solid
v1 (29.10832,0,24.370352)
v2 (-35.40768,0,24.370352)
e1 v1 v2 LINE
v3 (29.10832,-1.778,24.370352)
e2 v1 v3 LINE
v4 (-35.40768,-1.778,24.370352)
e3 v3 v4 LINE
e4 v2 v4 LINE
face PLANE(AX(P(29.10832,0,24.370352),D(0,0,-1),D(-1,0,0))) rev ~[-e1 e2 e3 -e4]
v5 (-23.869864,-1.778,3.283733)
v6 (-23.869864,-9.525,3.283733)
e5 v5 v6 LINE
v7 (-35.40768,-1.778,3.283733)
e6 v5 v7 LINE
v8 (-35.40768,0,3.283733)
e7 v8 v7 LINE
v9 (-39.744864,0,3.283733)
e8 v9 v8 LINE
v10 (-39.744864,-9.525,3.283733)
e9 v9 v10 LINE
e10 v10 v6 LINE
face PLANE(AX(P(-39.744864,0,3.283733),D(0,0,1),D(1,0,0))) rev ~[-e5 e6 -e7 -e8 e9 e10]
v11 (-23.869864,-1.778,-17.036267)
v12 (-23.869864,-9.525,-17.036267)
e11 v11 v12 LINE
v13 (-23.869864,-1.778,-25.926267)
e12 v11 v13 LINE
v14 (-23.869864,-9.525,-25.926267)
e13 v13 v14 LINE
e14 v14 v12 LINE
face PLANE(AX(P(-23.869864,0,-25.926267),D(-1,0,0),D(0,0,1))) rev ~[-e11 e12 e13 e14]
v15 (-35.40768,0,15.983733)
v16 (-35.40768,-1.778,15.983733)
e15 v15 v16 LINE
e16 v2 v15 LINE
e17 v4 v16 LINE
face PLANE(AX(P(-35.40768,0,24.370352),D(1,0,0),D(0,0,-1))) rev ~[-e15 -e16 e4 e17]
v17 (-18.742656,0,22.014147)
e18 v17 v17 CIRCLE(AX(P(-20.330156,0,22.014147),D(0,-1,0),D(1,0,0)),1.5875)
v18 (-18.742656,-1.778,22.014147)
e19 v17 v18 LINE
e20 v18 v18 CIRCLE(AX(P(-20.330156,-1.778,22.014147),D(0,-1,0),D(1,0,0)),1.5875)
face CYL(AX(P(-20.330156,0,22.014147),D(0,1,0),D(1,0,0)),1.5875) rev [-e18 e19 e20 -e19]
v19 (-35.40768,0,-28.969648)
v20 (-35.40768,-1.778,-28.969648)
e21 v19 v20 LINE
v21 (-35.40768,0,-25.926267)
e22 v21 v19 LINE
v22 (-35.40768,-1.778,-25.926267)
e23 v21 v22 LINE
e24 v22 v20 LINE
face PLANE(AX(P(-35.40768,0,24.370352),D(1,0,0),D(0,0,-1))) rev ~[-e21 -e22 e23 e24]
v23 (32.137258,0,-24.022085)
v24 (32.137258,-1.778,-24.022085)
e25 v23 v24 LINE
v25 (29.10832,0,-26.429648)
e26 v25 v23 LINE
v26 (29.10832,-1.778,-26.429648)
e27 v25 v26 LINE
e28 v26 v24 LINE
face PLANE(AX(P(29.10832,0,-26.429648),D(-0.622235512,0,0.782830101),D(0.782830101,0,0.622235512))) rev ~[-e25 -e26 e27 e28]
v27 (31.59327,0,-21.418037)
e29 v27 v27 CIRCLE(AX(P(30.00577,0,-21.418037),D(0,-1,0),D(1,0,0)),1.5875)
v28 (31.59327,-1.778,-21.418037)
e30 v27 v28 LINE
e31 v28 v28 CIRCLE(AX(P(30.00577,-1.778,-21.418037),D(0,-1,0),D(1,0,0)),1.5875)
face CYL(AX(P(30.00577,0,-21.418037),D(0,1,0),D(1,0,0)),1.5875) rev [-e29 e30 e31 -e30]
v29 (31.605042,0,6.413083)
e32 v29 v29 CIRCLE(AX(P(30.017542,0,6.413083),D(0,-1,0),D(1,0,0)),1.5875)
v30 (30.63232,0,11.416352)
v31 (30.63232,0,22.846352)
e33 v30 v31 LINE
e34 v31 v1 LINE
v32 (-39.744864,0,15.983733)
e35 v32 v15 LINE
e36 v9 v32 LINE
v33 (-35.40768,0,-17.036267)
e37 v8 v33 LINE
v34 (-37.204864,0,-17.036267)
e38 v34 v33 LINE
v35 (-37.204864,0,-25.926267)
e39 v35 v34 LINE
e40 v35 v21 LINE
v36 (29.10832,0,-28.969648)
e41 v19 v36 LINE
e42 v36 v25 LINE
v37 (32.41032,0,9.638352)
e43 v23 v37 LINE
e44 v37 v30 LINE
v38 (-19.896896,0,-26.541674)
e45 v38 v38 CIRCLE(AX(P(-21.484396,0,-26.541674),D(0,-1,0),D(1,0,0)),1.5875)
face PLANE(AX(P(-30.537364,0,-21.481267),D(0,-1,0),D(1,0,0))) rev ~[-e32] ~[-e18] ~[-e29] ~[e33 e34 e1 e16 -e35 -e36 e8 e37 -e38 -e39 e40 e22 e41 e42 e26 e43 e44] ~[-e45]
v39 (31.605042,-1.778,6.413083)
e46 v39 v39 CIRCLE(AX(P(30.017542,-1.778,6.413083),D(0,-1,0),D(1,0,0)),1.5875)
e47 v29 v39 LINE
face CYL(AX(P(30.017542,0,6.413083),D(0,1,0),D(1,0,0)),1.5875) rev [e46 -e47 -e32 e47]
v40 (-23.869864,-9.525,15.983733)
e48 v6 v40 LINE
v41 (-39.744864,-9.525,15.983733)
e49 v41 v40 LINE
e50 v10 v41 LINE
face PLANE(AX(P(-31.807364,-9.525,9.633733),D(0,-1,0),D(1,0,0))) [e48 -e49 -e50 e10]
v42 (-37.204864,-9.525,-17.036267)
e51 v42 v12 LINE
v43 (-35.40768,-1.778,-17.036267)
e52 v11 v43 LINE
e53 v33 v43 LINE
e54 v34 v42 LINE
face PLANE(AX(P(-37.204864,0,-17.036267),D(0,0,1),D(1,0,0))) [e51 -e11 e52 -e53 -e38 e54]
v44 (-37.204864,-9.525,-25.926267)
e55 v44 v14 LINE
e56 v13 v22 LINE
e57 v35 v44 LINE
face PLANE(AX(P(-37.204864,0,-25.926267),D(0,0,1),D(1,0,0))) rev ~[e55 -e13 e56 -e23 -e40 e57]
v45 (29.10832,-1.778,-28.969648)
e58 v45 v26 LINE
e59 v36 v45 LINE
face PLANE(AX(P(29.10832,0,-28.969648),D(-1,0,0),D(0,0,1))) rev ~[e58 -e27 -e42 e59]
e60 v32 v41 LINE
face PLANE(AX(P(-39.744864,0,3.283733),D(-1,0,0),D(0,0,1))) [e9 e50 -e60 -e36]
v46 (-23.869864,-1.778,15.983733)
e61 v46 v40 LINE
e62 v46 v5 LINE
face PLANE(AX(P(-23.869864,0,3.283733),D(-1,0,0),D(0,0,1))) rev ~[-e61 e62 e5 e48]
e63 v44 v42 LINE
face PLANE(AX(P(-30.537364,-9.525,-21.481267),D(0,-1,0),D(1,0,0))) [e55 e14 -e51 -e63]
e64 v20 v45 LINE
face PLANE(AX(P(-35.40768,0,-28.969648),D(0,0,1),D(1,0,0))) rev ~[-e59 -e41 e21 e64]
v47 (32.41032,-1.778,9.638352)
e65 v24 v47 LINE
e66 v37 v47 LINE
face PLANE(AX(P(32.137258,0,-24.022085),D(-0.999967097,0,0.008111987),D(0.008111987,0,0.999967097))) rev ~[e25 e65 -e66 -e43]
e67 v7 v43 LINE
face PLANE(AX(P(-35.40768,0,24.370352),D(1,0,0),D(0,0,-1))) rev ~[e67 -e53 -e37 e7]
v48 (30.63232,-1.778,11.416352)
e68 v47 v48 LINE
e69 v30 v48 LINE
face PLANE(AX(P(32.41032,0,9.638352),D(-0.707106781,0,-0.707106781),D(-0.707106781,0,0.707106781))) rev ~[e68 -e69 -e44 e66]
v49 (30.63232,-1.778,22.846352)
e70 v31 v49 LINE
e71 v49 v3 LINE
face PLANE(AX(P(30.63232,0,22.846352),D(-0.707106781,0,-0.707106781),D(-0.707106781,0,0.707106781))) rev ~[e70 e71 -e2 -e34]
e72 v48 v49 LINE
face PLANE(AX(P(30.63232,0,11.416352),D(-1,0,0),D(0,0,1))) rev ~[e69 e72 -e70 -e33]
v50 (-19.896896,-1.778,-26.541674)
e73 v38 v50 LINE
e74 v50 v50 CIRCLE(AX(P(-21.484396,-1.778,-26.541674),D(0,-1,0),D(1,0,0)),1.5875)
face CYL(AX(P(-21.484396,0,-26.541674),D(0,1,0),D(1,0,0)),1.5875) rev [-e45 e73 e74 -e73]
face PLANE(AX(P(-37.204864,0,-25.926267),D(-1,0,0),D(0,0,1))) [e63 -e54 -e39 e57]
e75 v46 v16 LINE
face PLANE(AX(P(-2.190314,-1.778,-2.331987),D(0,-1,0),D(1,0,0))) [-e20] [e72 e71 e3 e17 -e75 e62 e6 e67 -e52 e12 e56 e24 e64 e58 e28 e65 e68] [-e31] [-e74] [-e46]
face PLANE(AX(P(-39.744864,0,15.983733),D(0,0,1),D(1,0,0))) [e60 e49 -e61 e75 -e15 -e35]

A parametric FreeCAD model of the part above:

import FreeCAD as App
import Part
import Sketcher
Q = App.Units.Quantity

doc = App.newDocument("Part")
params = doc.addObject("Spreadsheet::Sheet", "Params")
for row, (alias, value) in enumerate([
    ("sketch1_height", "2.1 in"),
    ("sketch1_height2", "0.1 in"),
    ("sketch1_width", "2.54 in"),
    ("sketch1_height3", "0.45 in"),
    ("pad1_length", "0.07 in"),
    ("sketch2_height", "0.5 in"),
    ("sketch2_height2", "0.35 in"),
    ("sketch2_width", "0.525 in"),
    ("pad2_length", "0.375 in"),
    ("sketch3_diameter", "0.125 in"),
    ("pocket1_length", "0.07 in"),
], start=1):
    params.set(f"A{row}", alias)
    params.set(f"B{row}", "=" + value)
    params.setAlias(f"B{row}", alias)

body = doc.addObject("PartDesign::Body", "Body")

# Sketch on XZ plane
sketch1 = doc.addObject("Sketcher::SketchObject", "Sketch")
body.addObject(sketch1)
sketch1.AttachmentSupport = (doc.XZ_Plane, [""])
sketch1.MapMode = "FlatFace"
sketch1.addGeometry([
    Part.LineSegment(App.Vector(29.10832, 24.370352, 0), App.Vector(-35.40768, 24.370352, 0)),  # 0
    Part.LineSegment(App.Vector(-35.40768, 24.370352, 0), App.Vector(-35.40768, -28.969648, 0)),  # 1
    Part.LineSegment(App.Vector(-35.40768, -28.969648, 0), App.Vector(29.10832, -28.969648, 0)),  # 2
    Part.LineSegment(App.Vector(29.10832, -28.969648, 0), App.Vector(29.10832, -26.429648, 0)),  # 3
    Part.LineSegment(App.Vector(29.10832, -26.429648, 0), App.Vector(32.137258, -24.022085, 0)),  # 4
    Part.LineSegment(App.Vector(32.137258, -24.022085, 0), App.Vector(32.41032, 9.638352, 0)),  # 5
    Part.LineSegment(App.Vector(32.41032, 9.638352, 0), App.Vector(30.63232, 11.416352, 0)),  # 6
    Part.LineSegment(App.Vector(30.63232, 11.416352, 0), App.Vector(30.63232, 22.846352, 0)),  # 7
    Part.LineSegment(App.Vector(30.63232, 22.846352, 0), App.Vector(29.10832, 24.370352, 0)),  # 8
], False)
sketch1.addConstraint([
    Sketcher.Constraint("Coincident", 0, 2, 1, 1),
    Sketcher.Constraint("Coincident", 1, 2, 2, 1),
    Sketcher.Constraint("Coincident", 2, 2, 3, 1),
    Sketcher.Constraint("Coincident", 3, 2, 4, 1),
    Sketcher.Constraint("Coincident", 4, 2, 5, 1),
    Sketcher.Constraint("Coincident", 5, 2, 6, 1),
    Sketcher.Constraint("Coincident", 6, 2, 7, 1),
    Sketcher.Constraint("Coincident", 7, 2, 8, 1),
    Sketcher.Constraint("Coincident", 8, 2, 0, 1),
    Sketcher.Constraint("Horizontal", 0),
    Sketcher.Constraint("Vertical", 1),
    Sketcher.Constraint("Horizontal", 2),
    Sketcher.Constraint("Vertical", 3),
    Sketcher.Constraint("Vertical", 7),
    Sketcher.Constraint("Parallel", 6, 8),
    Sketcher.Constraint("Vertical", 3, 2, 8, 2),
    Sketcher.Constraint("DistanceY", 1, 2, 1, 1, Q("2.1 in")),
    Sketcher.Constraint("DistanceY", 3, 1, 3, 2, Q("0.1 in")),
    Sketcher.Constraint("Angle", 6, Q("135 deg")),
    Sketcher.Constraint("DistanceX", 0, 2, 0, 1, Q("2.54 in")),
    Sketcher.Constraint("DistanceY", 7, 1, 7, 2, Q("0.45 in")),
    Sketcher.Constraint("DistanceX", 0, 2, 6, 2, Q("2.6 in")),
    Sketcher.Constraint("DistanceX", 3, 2, 5, 2, Q("0.13 in")),
    Sketcher.Constraint("DistanceX", 0, 2, -1, 1, Q("35.40768 mm")),
    Sketcher.Constraint("DistanceY", 3, 2, -1, 1, Q("26.429648 mm")),
    Sketcher.Constraint("DistanceX", -1, 1, 4, 2, Q("32.137258 mm")),
    Sketcher.Constraint("Distance", 4, Q("3.869215 mm")),
])
sketch1.setExpression("Constraints[16]", "Params.sketch1_height")
sketch1.setExpression("Constraints[17]", "Params.sketch1_height2")
sketch1.setExpression("Constraints[19]", "Params.sketch1_width")
sketch1.setExpression("Constraints[20]", "Params.sketch1_height3")
pad1 = doc.addObject("PartDesign::Pad", "Pad")
body.addObject(pad1)
pad1.Profile = sketch1
pad1.setExpression("Length", "Params.pad1_length")

# Sketch on XZ plane
sketch2 = doc.addObject("Sketcher::SketchObject", "Sketch001")
body.addObject(sketch2)
sketch2.AttachmentSupport = (doc.XZ_Plane, [""])
sketch2.MapMode = "FlatFace"
sketch2.addGeometry([
    Part.LineSegment(App.Vector(-37.204864, -17.036267, 0), App.Vector(-37.204864, -25.926267, 0)),  # 0
    Part.LineSegment(App.Vector(-37.204864, -25.926267, 0), App.Vector(-23.869864, -25.926267, 0)),  # 1
    Part.LineSegment(App.Vector(-23.869864, -25.926267, 0), App.Vector(-23.869864, -17.036267, 0)),  # 2
    Part.LineSegment(App.Vector(-23.869864, -17.036267, 0), App.Vector(-37.204864, -17.036267, 0)),  # 3
    Part.LineSegment(App.Vector(-39.744864, 15.983733, 0), App.Vector(-39.744864, 3.283733, 0)),  # 4
    Part.LineSegment(App.Vector(-39.744864, 3.283733, 0), App.Vector(-23.869864, 3.283733, 0)),  # 5
    Part.LineSegment(App.Vector(-23.869864, 3.283733, 0), App.Vector(-23.869864, 15.983733, 0)),  # 6
    Part.LineSegment(App.Vector(-23.869864, 15.983733, 0), App.Vector(-39.744864, 15.983733, 0)),  # 7
], False)
sketch2.addConstraint([
    Sketcher.Constraint("Coincident", 0, 2, 1, 1),
    Sketcher.Constraint("Coincident", 1, 2, 2, 1),
    Sketcher.Constraint("Coincident", 2, 2, 3, 1),
    Sketcher.Constraint("Coincident", 3, 2, 0, 1),
    Sketcher.Constraint("Coincident", 4, 2, 5, 1),
    Sketcher.Constraint("Coincident", 5, 2, 6, 1),
    Sketcher.Constraint("Coincident", 6, 2, 7, 1),
    Sketcher.Constraint("Coincident", 7, 2, 4, 1),
    Sketcher.Constraint("Vertical", 0),
    Sketcher.Constraint("Horizontal", 1),
    Sketcher.Constraint("Vertical", 2),
    Sketcher.Constraint("Horizontal", 3),
    Sketcher.Constraint("Vertical", 4),
    Sketcher.Constraint("Horizontal", 5),
    Sketcher.Constraint("Vertical", 6),
    Sketcher.Constraint("Horizontal", 7),
    Sketcher.Constraint("Vertical", 2, 2, 5, 2),
    Sketcher.Constraint("DistanceY", 4, 2, 4, 1, Q("0.5 in")),
    Sketcher.Constraint("DistanceY", 0, 2, 0, 1, Q("0.35 in")),
    Sketcher.Constraint("DistanceX", 4, 2, 3, 2, Q("0.1 in")),
    Sketcher.Constraint("DistanceY", 3, 2, 4, 2, Q("0.8 in")),
    Sketcher.Constraint("DistanceX", 1, 1, 1, 2, Q("0.525 in")),
    Sketcher.Constraint("DistanceX", 0, 2, -1, 1, Q("37.204864 mm")),
    Sketcher.Constraint("DistanceY", 0, 2, -1, 1, Q("25.926267 mm")),
])
sketch2.setExpression("Constraints[17]", "Params.sketch2_height")
sketch2.setExpression("Constraints[18]", "Params.sketch2_height2")
sketch2.setExpression("Constraints[21]", "Params.sketch2_width")
pad2 = doc.addObject("PartDesign::Pad", "Pad001")
body.addObject(pad2)
pad2.Profile = sketch2
pad2.setExpression("Length", "Params.pad2_length")

# Sketch on XZ plane
sketch3 = doc.addObject("Sketcher::SketchObject", "Sketch002")
body.addObject(sketch3)
sketch3.AttachmentSupport = (doc.XZ_Plane, [""])
sketch3.MapMode = "FlatFace"
sketch3.addGeometry([
    Part.Circle(App.Vector(-20.330156, 22.014147, 0), App.Vector(0, 0, 1), 1.5875),
    Part.Circle(App.Vector(-21.484396, -26.541674, 0), App.Vector(0, 0, 1), 1.5875),
    Part.Circle(App.Vector(30.017542, 6.413083, 0), App.Vector(0, 0, 1), 1.5875),
    Part.Circle(App.Vector(30.00577, -21.418037, 0), App.Vector(0, 0, 1), 1.5875),
], False)
sketch3.addConstraint([
    Sketcher.Constraint("Equal", 0, 1),
    Sketcher.Constraint("Equal", 1, 2),
    Sketcher.Constraint("Equal", 2, 3),
    Sketcher.Constraint("Diameter", 0, Q("0.125 in")),
    Sketcher.Constraint("DistanceX", 0, 3, -1, 1, Q("0.8003998 in")),
    Sketcher.Constraint("DistanceX", -1, 1, 2, 3, Q("30.017542 mm")),
    Sketcher.Constraint("DistanceX", -1, 1, 3, 3, Q("30.00577 mm")),
    Sketcher.Constraint("DistanceX", 1, 3, 0, 3, Q("1.15424 mm")),
    Sketcher.Constraint("DistanceY", 1, 3, 0, 3, Q("48.555821 mm")),
    Sketcher.Constraint("DistanceY", 3, 3, 2, 3, Q("27.83112 mm")),
    Sketcher.Constraint("DistanceY", -1, 1, 0, 3, Q("22.014147 mm")),
    Sketcher.Constraint("DistanceY", -1, 1, 2, 3, Q("6.413083 mm")),
])
sketch3.setExpression("Constraints[3]", "Params.sketch3_diameter")
pocket1 = doc.addObject("PartDesign::Pocket", "Pocket")
body.addObject(pocket1)
pocket1.Profile = sketch3
pocket1.setExpression("Length", "Params.pocket1_length")
pocket1.Reversed = True

doc.recompute()
